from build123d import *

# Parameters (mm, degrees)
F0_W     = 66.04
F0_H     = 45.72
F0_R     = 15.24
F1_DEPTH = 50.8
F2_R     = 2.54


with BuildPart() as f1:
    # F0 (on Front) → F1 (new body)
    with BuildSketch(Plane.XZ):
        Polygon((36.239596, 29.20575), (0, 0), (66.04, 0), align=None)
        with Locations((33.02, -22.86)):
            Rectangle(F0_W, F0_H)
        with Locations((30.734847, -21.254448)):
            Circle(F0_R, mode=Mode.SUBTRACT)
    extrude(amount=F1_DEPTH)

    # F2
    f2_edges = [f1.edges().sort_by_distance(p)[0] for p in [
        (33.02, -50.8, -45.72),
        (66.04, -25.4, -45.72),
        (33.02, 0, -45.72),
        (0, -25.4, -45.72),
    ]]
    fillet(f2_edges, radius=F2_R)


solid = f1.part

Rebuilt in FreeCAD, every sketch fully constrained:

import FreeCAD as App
import Part
import Sketcher

V = App.Vector
Q = App.Units.Quantity


def edges_at(feature, points):
    """Names of the edges that pass closest to the given points."""
    edges = feature.Shape.Edges
    near = lambda p: min(range(len(edges)), key=lambda i: edges[i].distToShape(Part.Vertex(*p))[0])
    return sorted({f"Edge{near(p) + 1}" for p in points})


def add_polygon(sketch, points):
    """Adds a closed chain of lines whose ends are joined by coincident constraints."""
    first, n = sketch.GeometryCount, len(points)
    for a, b in zip(points, points[1:] + points[:1]):
        sketch.addGeometry(Part.LineSegment(App.Vector(*a, 0), App.Vector(*b, 0)), False)
    for i in range(n):
        sketch.addConstraint(Sketcher.Constraint("Coincident", first + i, 2, first + (i + 1) % n, 1))

doc = App.newDocument("Part")
params = doc.addObject("Spreadsheet::Sheet", "Params")
for row, (alias, value) in enumerate([
    ("sketch1_diameter", "1.2 in"),
    ("sketch1_width", "2.6 in"),
    ("sketch1_height", "1.8 in"),
    ("pad1_length", "2 in"),
    ("fillet_radius", "0.1 in"),
], start=1):
    params.set(f"A{row}", alias)
    params.set(f"B{row}", "=" + value)
    params.setAlias(f"B{row}", alias)

body = doc.addObject("PartDesign::Body", "Body")

# Sketch on XZ plane
sketch1 = body.newObject("Sketcher::SketchObject", "Sketch")
sketch1.AttachmentSupport = (doc.getObject("XZ_Plane"), [""])
sketch1.MapMode = "FlatFace"
add_polygon(sketch1, [(36, 29), (0, 0), (0, -46), (66, -46), (66, 0)])  # lines 0-4
sketch1.addGeometry(Part.Circle(V(31, -21, 0), V(0, 0, 1), 15), False)  # 5
sketch1.addConstraint(Sketcher.Constraint("Vertical", 1))
sketch1.addConstraint(Sketcher.Constraint("Horizontal", 2))
sketch1.addConstraint(Sketcher.Constraint("Vertical", 3))
sketch1.addConstraint(Sketcher.Constraint("Coincident", 0, 2, -1, 1))
sketch1.addConstraint(Sketcher.Constraint("PointOnObject", 3, 2, -1))
sketch1.addConstraint(Sketcher.Constraint("Diameter", 5, Q("1.2 in")))
sketch1.addConstraint(Sketcher.Constraint("DistanceX", 2, 1, 2, 2, Q("2.6 in")))
sketch1.addConstraint(Sketcher.Constraint("DistanceY", 1, 2, 1, 1, Q("1.8 in")))
sketch1.addConstraint(Sketcher.Constraint("Distance", 4, 41.72577))
sketch1.addConstraint(Sketcher.Constraint("DistanceY", 5, 3, -1, 1, 21.254448))
sketch1.addConstraint(Sketcher.Constraint("DistanceY", -1, 1, 4, 2, 29.20575))
sketch1.addConstraint(Sketcher.Constraint("DistanceX", 5, 3, 4, 2, 5.504749))
sketch1.setExpression("Constraints[10]", "Params.sketch1_diameter")
sketch1.setExpression("Constraints[11]", "Params.sketch1_width")
sketch1.setExpression("Constraints[12]", "Params.sketch1_height")
pad1 = body.newObject("PartDesign::Pad", "Pad")
pad1.Profile = sketch1
pad1.setExpression("Length", "Params.pad1_length")
doc.recompute()

fillet = body.newObject("PartDesign::Fillet", "Fillet")
fillet.Base = (pad1, edges_at(pad1, [
    (33.02, -50.8, -45.72),
    (66.04, -25.4, -45.72),
    (33.02, 0, -45.72),
    (0, -25.4, -45.72),
]))
fillet.setExpression("Radius", "Params.fillet_radius")

doc.recompute()
